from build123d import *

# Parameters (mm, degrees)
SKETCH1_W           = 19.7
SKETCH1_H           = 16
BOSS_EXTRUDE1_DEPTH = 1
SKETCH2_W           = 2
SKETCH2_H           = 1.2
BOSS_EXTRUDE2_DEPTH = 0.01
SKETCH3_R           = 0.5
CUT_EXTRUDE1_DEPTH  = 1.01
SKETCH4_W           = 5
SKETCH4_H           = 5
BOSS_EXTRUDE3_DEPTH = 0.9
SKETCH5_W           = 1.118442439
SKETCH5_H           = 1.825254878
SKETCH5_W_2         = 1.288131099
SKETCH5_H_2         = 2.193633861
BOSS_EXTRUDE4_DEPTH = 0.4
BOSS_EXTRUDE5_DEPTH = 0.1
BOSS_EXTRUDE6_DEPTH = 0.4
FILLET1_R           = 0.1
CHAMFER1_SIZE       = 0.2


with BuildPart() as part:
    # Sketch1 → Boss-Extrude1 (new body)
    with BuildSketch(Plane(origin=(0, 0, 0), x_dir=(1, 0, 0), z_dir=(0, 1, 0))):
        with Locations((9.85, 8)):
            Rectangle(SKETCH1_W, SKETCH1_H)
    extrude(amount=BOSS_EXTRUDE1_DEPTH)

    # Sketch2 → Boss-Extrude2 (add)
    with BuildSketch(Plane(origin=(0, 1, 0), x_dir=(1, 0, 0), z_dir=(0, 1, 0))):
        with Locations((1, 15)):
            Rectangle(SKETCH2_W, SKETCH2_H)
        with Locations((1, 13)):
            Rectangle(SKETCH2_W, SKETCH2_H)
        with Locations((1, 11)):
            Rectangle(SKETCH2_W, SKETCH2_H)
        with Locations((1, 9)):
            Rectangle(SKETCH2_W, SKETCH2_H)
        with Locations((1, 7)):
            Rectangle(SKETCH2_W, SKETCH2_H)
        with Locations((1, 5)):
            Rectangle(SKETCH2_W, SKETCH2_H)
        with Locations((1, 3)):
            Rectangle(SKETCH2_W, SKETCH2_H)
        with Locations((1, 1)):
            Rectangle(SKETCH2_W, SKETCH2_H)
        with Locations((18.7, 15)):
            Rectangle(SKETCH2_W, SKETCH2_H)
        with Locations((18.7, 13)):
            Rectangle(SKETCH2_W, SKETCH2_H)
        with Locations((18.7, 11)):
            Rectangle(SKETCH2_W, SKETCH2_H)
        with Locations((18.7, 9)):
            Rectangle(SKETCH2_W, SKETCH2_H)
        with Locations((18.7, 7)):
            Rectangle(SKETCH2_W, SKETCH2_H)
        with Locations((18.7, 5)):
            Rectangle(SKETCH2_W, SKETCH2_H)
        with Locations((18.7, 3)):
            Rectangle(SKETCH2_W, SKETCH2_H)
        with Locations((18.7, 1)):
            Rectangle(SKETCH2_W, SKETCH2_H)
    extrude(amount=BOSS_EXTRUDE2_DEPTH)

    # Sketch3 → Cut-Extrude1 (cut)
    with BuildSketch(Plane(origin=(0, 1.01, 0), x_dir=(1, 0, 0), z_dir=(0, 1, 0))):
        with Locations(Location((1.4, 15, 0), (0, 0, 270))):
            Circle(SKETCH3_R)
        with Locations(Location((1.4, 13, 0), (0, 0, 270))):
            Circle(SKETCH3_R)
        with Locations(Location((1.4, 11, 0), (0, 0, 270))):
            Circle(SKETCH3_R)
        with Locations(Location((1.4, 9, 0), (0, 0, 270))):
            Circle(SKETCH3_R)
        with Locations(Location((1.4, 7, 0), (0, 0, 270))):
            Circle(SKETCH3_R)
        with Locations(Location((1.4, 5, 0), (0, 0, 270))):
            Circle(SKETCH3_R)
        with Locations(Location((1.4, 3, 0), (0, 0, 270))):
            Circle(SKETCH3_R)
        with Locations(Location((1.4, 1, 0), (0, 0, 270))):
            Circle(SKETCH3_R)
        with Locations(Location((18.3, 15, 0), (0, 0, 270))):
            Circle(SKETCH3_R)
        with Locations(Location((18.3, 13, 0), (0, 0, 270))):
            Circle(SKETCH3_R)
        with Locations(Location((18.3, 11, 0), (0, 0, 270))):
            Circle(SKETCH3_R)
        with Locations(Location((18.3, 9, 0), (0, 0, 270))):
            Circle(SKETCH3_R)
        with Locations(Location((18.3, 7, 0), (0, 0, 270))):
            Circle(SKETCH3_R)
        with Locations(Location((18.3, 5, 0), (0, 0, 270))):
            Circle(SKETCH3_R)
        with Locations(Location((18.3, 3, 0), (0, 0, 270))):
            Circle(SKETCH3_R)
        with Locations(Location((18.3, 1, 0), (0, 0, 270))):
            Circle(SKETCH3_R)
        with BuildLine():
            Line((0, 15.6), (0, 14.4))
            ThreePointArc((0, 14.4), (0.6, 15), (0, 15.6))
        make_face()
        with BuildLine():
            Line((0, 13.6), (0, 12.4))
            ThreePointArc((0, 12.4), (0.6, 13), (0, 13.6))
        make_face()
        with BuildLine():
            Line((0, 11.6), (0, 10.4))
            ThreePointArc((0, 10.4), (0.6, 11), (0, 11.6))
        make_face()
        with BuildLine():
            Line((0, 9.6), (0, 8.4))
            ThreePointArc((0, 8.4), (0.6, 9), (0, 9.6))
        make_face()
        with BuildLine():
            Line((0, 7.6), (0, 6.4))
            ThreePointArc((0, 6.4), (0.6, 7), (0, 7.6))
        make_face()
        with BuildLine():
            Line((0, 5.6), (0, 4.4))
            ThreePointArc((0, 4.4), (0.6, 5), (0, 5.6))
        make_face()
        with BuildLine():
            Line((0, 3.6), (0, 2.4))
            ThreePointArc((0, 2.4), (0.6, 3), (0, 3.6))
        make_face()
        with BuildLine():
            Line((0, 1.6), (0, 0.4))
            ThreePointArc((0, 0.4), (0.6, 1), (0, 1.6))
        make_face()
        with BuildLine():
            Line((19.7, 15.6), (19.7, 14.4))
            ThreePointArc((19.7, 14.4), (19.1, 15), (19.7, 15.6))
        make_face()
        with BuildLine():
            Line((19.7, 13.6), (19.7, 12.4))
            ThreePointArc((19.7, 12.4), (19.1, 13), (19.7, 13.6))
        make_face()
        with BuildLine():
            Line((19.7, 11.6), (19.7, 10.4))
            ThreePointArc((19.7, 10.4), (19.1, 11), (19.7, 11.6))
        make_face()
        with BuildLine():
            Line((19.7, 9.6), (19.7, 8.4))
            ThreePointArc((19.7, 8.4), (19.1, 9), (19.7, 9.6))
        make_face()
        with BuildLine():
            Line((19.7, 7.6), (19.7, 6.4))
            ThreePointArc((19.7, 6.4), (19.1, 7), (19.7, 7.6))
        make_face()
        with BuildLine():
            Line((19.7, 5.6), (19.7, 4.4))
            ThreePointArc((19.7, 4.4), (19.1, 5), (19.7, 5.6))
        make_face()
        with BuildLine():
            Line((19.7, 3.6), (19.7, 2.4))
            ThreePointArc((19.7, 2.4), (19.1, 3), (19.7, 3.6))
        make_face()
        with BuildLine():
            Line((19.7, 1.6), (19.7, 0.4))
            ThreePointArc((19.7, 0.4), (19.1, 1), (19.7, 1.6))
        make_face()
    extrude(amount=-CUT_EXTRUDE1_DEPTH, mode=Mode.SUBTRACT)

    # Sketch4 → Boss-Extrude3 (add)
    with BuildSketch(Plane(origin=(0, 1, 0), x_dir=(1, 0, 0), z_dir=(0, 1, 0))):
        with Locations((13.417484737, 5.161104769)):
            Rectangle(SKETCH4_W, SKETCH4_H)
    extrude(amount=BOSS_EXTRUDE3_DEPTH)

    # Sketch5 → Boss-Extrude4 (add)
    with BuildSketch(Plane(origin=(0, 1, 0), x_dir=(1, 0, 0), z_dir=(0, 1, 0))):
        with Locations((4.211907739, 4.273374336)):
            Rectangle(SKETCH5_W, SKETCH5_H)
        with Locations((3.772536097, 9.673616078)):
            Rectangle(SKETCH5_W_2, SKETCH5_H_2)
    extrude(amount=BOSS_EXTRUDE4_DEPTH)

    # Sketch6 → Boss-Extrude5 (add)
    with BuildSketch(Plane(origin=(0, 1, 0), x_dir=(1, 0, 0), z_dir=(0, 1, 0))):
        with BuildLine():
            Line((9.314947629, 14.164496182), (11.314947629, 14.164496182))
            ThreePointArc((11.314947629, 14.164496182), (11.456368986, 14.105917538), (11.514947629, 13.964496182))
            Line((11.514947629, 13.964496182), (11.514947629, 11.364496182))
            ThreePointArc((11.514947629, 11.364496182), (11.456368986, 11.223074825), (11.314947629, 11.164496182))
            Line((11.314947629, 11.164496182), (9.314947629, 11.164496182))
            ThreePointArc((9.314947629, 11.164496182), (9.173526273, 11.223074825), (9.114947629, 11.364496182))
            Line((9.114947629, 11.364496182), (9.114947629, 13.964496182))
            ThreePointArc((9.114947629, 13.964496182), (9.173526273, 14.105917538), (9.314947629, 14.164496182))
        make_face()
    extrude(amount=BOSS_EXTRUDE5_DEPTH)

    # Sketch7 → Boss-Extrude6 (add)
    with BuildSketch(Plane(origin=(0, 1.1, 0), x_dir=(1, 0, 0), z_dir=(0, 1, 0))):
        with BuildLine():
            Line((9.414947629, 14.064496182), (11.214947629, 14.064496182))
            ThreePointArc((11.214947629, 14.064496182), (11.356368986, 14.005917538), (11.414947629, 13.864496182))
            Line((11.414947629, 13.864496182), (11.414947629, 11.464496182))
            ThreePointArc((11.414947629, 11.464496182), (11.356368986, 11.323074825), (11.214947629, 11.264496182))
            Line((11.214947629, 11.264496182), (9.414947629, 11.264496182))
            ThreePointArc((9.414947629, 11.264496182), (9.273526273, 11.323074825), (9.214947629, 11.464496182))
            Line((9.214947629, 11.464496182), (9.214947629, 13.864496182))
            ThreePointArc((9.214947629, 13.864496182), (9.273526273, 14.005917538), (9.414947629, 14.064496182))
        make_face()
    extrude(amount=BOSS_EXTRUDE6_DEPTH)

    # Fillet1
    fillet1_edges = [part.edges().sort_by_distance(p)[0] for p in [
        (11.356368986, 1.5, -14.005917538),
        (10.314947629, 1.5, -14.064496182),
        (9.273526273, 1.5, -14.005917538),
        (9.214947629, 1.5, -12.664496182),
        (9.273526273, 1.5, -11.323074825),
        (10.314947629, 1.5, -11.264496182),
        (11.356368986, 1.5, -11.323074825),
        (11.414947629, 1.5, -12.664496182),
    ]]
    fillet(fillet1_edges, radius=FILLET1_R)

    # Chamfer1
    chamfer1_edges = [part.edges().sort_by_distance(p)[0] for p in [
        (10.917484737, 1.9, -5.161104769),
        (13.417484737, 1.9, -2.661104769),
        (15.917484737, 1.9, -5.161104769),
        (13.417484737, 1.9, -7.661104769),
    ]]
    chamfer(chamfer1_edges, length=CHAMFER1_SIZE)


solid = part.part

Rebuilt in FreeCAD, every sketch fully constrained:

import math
import FreeCAD as App
import Part
import Sketcher

V = App.Vector
Q = App.Units.Quantity


def edges_at(feature, points):
    """Names of the edges that pass closest to the given points."""
    edges = feature.Shape.Edges
    near = lambda p: min(range(len(edges)), key=lambda i: edges[i].distToShape(Part.Vertex(*p))[0])
    return sorted({f"Edge{near(p) + 1}" for p in points})


def add_polygon(sketch, points):
    """Adds a closed chain of lines whose ends are joined by coincident constraints."""
    first, n = sketch.GeometryCount, len(points)
    for a, b in zip(points, points[1:] + points[:1]):
        sketch.addGeometry(Part.LineSegment(App.Vector(*a, 0), App.Vector(*b, 0)), False)
    for i in range(n):
        sketch.addConstraint(Sketcher.Constraint("Coincident", first + i, 2, first + (i + 1) % n, 1))

doc = App.newDocument("Part")
params = doc.addObject("Spreadsheet::Sheet", "Params")
for row, (alias, value) in enumerate([
    ("sketch1_height", "16 mm"),
    ("sketch1_width", "19.7 mm"),
    ("pad1_length", "1 mm"),
    ("sketch2_width", "2 mm"),
    ("sketch2_height", "1.2 mm"),
    ("pad2_length", "0.01 mm"),
    ("sketch3_diameter", "1 mm"),
    ("sketch3_radius", "0.6 mm"),
    ("pocket1_length", "1.01 mm"),
    ("sketch4_width", "5 mm"),
    ("pad3_length", "0.9 mm"),
    ("pad4_length", "0.4 mm"),
    ("sketch6_radius", "0.2 mm"),
    ("sketch6_width", "2 mm"),
    ("sketch6_height", "2.6 mm"),
    ("pad5_length", "0.1 mm"),
    ("sketch7_radius", "0.2 mm"),
    ("sketch7_width", "1.8 mm"),
    ("sketch7_height", "2.4 mm"),
    ("pad6_length", "0.4 mm"),
    ("fillet_radius", "0.1 mm"),
    ("chamfer_size", "0.2 mm"),
], start=1):
    params.set(f"A{row}", alias)
    params.set(f"B{row}", "=" + value)
    params.setAlias(f"B{row}", alias)

body = doc.addObject("PartDesign::Body", "Body")

# Sketch on XZ plane
sketch1 = body.newObject("Sketcher::SketchObject", "Sketch")
sketch1.AttachmentSupport = (doc.getObject("XZ_Plane"), [""])
sketch1.MapMode = "FlatFace"
add_polygon(sketch1, [(0, -16), (0, 0), (20, 0), (20, -16)])  # lines 0-3
sketch1.addConstraint([
    Sketcher.Constraint("Vertical", 0),
    Sketcher.Constraint("Horizontal", 1),
    Sketcher.Constraint("Vertical", 2),
    Sketcher.Constraint("Horizontal", 3),
    Sketcher.Constraint("Coincident", 0, 2, -1, 1),
    Sketcher.Constraint("DistanceY", 0, 1, 0, 2, Q("16 mm")),
    Sketcher.Constraint("DistanceX", 1, 1, 1, 2, Q("19.7 mm")),
])
sketch1.setExpression("Constraints[9]", "Params.sketch1_height")
sketch1.setExpression("Constraints[10]", "Params.sketch1_width")
pad1 = body.newObject("PartDesign::Pad", "Pad")
pad1.Profile = sketch1
pad1.setExpression("Length", "Params.pad1_length")
pad1.Reversed = True

# Sketch on XZ plane
sketch2 = body.newObject("Sketcher::SketchObject", "Sketch001")
sketch2.AttachmentSupport = (doc.getObject("XZ_Plane"), [""])
sketch2.MapMode = "FlatFace"
sketch2.AttachmentOffset = App.Placement(V(0, 0, -1), App.Rotation())
add_polygon(sketch2, [(0, -15.6), (0, -14.4), (2, -14.4), (2, -15.6)])  # lines 0-3
add_polygon(sketch2, [(0, -13.6), (0, -12.4), (2, -12.4), (2, -13.6)])  # lines 4-7
add_polygon(sketch2, [(0, -11.6), (0, -10.4), (2, -10.4), (2, -11.6)])  # lines 8-11
add_polygon(sketch2, [(0, -9.6), (0, -8.4), (2, -8.4), (2, -9.6)])  # lines 12-15
add_polygon(sketch2, [(0, -7.6), (0, -6.4), (2, -6.4), (2, -7.6)])  # lines 16-19
add_polygon(sketch2, [(0, -5.6), (0, -4.4), (2, -4.4), (2, -5.6)])  # lines 20-23
add_polygon(sketch2, [(0, -3.6), (0, -2.4), (2, -2.4), (2, -3.6)])  # lines 24-27
add_polygon(sketch2, [(0, -1.6), (0, -0.4), (2, -0.4), (2, -1.6)])  # lines 28-31
add_polygon(sketch2, [(17.7, -15.6), (17.7, -14.4), (19.7, -14.4), (19.7, -15.6)])  # lines 32-35
add_polygon(sketch2, [(17.7, -13.6), (17.7, -12.4), (19.7, -12.4), (19.7, -13.6)])  # lines 36-39
add_polygon(sketch2, [(17.7, -11.6), (17.7, -10.4), (19.7, -10.4), (19.7, -11.6)])  # lines 40-43
add_polygon(sketch2, [(17.7, -9.6), (17.7, -8.4), (19.7, -8.4), (19.7, -9.6)])  # lines 44-47
add_polygon(sketch2, [(17.7, -7.6), (17.7, -6.4), (19.7, -6.4), (19.7, -7.6)])  # lines 48-51
add_polygon(sketch2, [(17.7, -5.6), (17.7, -4.4), (19.7, -4.4), (19.7, -5.6)])  # lines 52-55
add_polygon(sketch2, [(17.7, -3.6), (17.7, -2.4), (19.7, -2.4), (19.7, -3.6)])  # lines 56-59
add_polygon(sketch2, [(17.7, -1.6), (17.7, -0.4), (19.7, -0.4), (19.7, -1.6)])  # lines 60-63
sketch2.addConstraint([
    Sketcher.Constraint("Vertical", 0),
    Sketcher.Constraint("Horizontal", 1),
    Sketcher.Constraint("Vertical", 2),
    Sketcher.Constraint("Horizontal", 3),
    Sketcher.Constraint("Vertical", 4),
    Sketcher.Constraint("Horizontal", 5),
    Sketcher.Constraint("Vertical", 6),
    Sketcher.Constraint("Horizontal", 7),
    Sketcher.Constraint("Vertical", 8),
    Sketcher.Constraint("Horizontal", 9),
    Sketcher.Constraint("Vertical", 10),
    Sketcher.Constraint("Horizontal", 11),
    Sketcher.Constraint("Vertical", 12),
    Sketcher.Constraint("Horizontal", 13),
    Sketcher.Constraint("Vertical", 14),
    Sketcher.Constraint("Horizontal", 15),
    Sketcher.Constraint("Vertical", 16),
    Sketcher.Constraint("Horizontal", 17),
    Sketcher.Constraint("Vertical", 18),
    Sketcher.Constraint("Horizontal", 19),
    Sketcher.Constraint("Vertical", 20),
    Sketcher.Constraint("Horizontal", 21),
    Sketcher.Constraint("Vertical", 22),
    Sketcher.Constraint("Horizontal", 23),
    Sketcher.Constraint("Vertical", 24),
    Sketcher.Constraint("Horizontal", 25),
    Sketcher.Constraint("Vertical", 26),
    Sketcher.Constraint("Horizontal", 27),
    Sketcher.Constraint("Vertical", 28),
    Sketcher.Constraint("Horizontal", 29),
    Sketcher.Constraint("Vertical", 30),
    Sketcher.Constraint("Horizontal", 31),
    Sketcher.Constraint("Vertical", 32),
    Sketcher.Constraint("Horizontal", 33),
    Sketcher.Constraint("Vertical", 34),
    Sketcher.Constraint("Horizontal", 35),
    Sketcher.Constraint("Vertical", 36),
    Sketcher.Constraint("Horizontal", 37),
    Sketcher.Constraint("Vertical", 38),
    Sketcher.Constraint("Horizontal", 39),
    Sketcher.Constraint("Vertical", 40),
    Sketcher.Constraint("Horizontal", 41),
    Sketcher.Constraint("Vertical", 42),
    Sketcher.Constraint("Horizontal", 43),
    Sketcher.Constraint("Vertical", 44),
    Sketcher.Constraint("Horizontal", 45),
    Sketcher.Constraint("Vertical", 46),
    Sketcher.Constraint("Horizontal", 47),
    Sketcher.Constraint("Vertical", 48),
    Sketcher.Constraint("Horizontal", 49),
    Sketcher.Constraint("Vertical", 50),
    Sketcher.Constraint("Horizontal", 51),
    Sketcher.Constraint("Vertical", 52),
    Sketcher.Constraint("Horizontal", 53),
    Sketcher.Constraint("Vertical", 54),
    Sketcher.Constraint("Horizontal", 55),
    Sketcher.Constraint("Vertical", 56),
    Sketcher.Constraint("Horizontal", 57),
    Sketcher.Constraint("Vertical", 58),
    Sketcher.Constraint("Horizontal", 59),
    Sketcher.Constraint("Vertical", 60),
    Sketcher.Constraint("Horizontal", 61),
    Sketcher.Constraint("Vertical", 62),
    Sketcher.Constraint("Horizontal", 63),
    Sketcher.Constraint("PointOnObject", 0, 2, -2),
    Sketcher.Constraint("PointOnObject", 4, 2, -2),
    Sketcher.Constraint("PointOnObject", 8, 2, -2),
    Sketcher.Constraint("PointOnObject", 12, 2, -2),
    Sketcher.Constraint("PointOnObject", 16, 2, -2),
    Sketcher.Constraint("PointOnObject", 20, 2, -2),
    Sketcher.Constraint("PointOnObject", 24, 2, -2),
    Sketcher.Constraint("PointOnObject", 28, 2, -2),
    Sketcher.Constraint("Horizontal", 1, 2, 32, 2),
    Sketcher.Constraint("Horizontal", 3, 2, 34, 2),
    Sketcher.Constraint("Horizontal", 5, 2, 36, 2),
    Sketcher.Constraint("Horizontal", 7, 2, 38, 2),
    Sketcher.Constraint("Horizontal", 9, 2, 40, 2),
    Sketcher.Constraint("Horizontal", 11, 2, 42, 2),
    Sketcher.Constraint("Horizontal", 13, 2, 44, 2),
    Sketcher.Constraint("Horizontal", 15, 2, 46, 2),
    Sketcher.Constraint("Horizontal", 17, 2, 48, 2),
    Sketcher.Constraint("Horizontal", 19, 2, 50, 2),
    Sketcher.Constraint("Horizontal", 21, 2, 52, 2),
    Sketcher.Constraint("Horizontal", 23, 2, 54, 2),
    Sketcher.Constraint("Horizontal", 25, 2, 56, 2),
    Sketcher.Constraint("Horizontal", 27, 2, 58, 2),
    Sketcher.Constraint("Horizontal", 29, 2, 60, 2),
    Sketcher.Constraint("Horizontal", 31, 2, 62, 2),
    Sketcher.Constraint("Vertical", 2, 2, 5, 2),
    Sketcher.Constraint("Vertical", 6, 2, 9, 2),
    Sketcher.Constraint("Vertical", 10, 2, 13, 2),
    Sketcher.Constraint("Vertical", 14, 2, 17, 2),
    Sketcher.Constraint("Vertical", 18, 2, 21, 2),
    Sketcher.Constraint("Vertical", 22, 2, 25, 2),
    Sketcher.Constraint("Vertical", 26, 2, 29, 2),
    Sketcher.Constraint("Vertical", 35, 2, 36, 2),
    Sketcher.Constraint("Vertical", 34, 2, 37, 2),
    Sketcher.Constraint("Vertical", 39, 2, 40, 2),
    Sketcher.Constraint("Vertical", 38, 2, 41, 2),
    Sketcher.Constraint("Vertical", 43, 2, 44, 2),
    Sketcher.Constraint("Vertical", 42, 2, 45, 2),
    Sketcher.Constraint("Vertical", 47, 2, 48, 2),
    Sketcher.Constraint("Vertical", 46, 2, 49, 2),
    Sketcher.Constraint("Vertical", 51, 2, 52, 2),
    Sketcher.Constraint("Vertical", 50, 2, 53, 2),
    Sketcher.Constraint("Vertical", 55, 2, 56, 2),
    Sketcher.Constraint("Vertical", 54, 2, 57, 2),
    Sketcher.Constraint("Vertical", 59, 2, 60, 2),
    Sketcher.Constraint("Vertical", 58, 2, 61, 2),
    Sketcher.Constraint("Equal", 31, 33),
    Sketcher.Constraint("Equal", 2, 4),
    Sketcher.Constraint("Equal", 6, 8),
    Sketcher.Constraint("Equal", 10, 12),
    Sketcher.Constraint("Equal", 14, 16),
    Sketcher.Constraint("Equal", 18, 20),
    Sketcher.Constraint("Equal", 22, 24),
    Sketcher.Constraint("Equal", 26, 28),
    Sketcher.Constraint("DistanceX", 1, 1, 1, 2, Q("2 mm")),
    Sketcher.Constraint("DistanceY", 0, 1, 0, 2, Q("1.2 mm")),
    Sketcher.Constraint("DistanceY", 0, 2, -1, 1, Q("14.4 mm")),
    Sketcher.Constraint("DistanceY", 4, 2, -1, 1, Q("12.4 mm")),
    Sketcher.Constraint("DistanceY", 8, 2, -1, 1, Q("10.4 mm")),
    Sketcher.Constraint("DistanceY", 12, 2, -1, 1, Q("8.4 mm")),
    Sketcher.Constraint("DistanceY", 16, 2, -1, 1, Q("6.4 mm")),
    Sketcher.Constraint("DistanceY", 20, 2, -1, 1, Q("4.4 mm")),
    Sketcher.Constraint("DistanceY", 24, 2, -1, 1, Q("2.4 mm")),
    Sketcher.Constraint("DistanceY", 28, 2, -1, 1, Q("0.4 mm")),
    Sketcher.Constraint("DistanceX", -1, 1, 32, 2, Q("17.7 mm")),
])
sketch2.setExpression("Constraints[181]", "Params.sketch2_width")
sketch2.setExpression("Constraints[182]", "Params.sketch2_height")
pad2 = body.newObject("PartDesign::Pad", "Pad001")
pad2.Profile = sketch2
pad2.setExpression("Length", "Params.pad2_length")
pad2.Reversed = True

# Sketch on XZ plane
sketch3 = body.newObject("Sketcher::SketchObject", "Sketch002")
sketch3.AttachmentSupport = (doc.getObject("XZ_Plane"), [""])
sketch3.MapMode = "FlatFace"
sketch3.AttachmentOffset = App.Placement(V(0, 0, -1.01), App.Rotation())
sketch3.addGeometry([
    Part.Circle(V(1.4, -15, 0), V(0, 0, 1), 0.5),  # 0
    Part.Circle(V(1.4, -13, 0), V(0, 0, 1), 0.5),  # 1
    Part.Circle(V(1.4, -11, 0), V(0, 0, 1), 0.5),  # 2
    Part.Circle(V(1.4, -9, 0), V(0, 0, 1), 0.5),  # 3
    Part.Circle(V(1.4, -7, 0), V(0, 0, 1), 0.5),  # 4
    Part.Circle(V(1.4, -5, 0), V(0, 0, 1), 0.5),  # 5
    Part.Circle(V(1.4, -3, 0), V(0, 0, 1), 0.5),  # 6
    Part.Circle(V(1.4, -1, 0), V(0, 0, 1), 0.5),  # 7
    Part.Circle(V(18.3, -15, 0), V(0, 0, 1), 0.5),  # 8
    Part.Circle(V(18.3, -13, 0), V(0, 0, 1), 0.5),  # 9
    Part.Circle(V(18.3, -11, 0), V(0, 0, 1), 0.5),  # 10
    Part.Circle(V(18.3, -9, 0), V(0, 0, 1), 0.5),  # 11
    Part.Circle(V(18.3, -7, 0), V(0, 0, 1), 0.5),  # 12
    Part.Circle(V(18.3, -5, 0), V(0, 0, 1), 0.5),  # 13
    Part.Circle(V(18.3, -3, 0), V(0, 0, 1), 0.5),  # 14
    Part.Circle(V(18.3, -1, 0), V(0, 0, 1), 0.5),  # 15
    Part.LineSegment(V(0, -15.6, 0), V(0, -14.4, 0)),  # 16
    Part.ArcOfCircle(Part.Circle(V(0, -15, 0), V(0, 0, 1), 0.6), math.radians(-90), math.radians(90)),  # 17
    Part.LineSegment(V(0, -13.6, 0), V(0, -12.4, 0)),  # 18
    Part.ArcOfCircle(Part.Circle(V(0, -13, 0), V(0, 0, 1), 0.6), math.radians(-90), math.radians(90)),  # 19
    Part.LineSegment(V(0, -11.6, 0), V(0, -10.4, 0)),  # 20
    Part.ArcOfCircle(Part.Circle(V(0, -11, 0), V(0, 0, 1), 0.6), math.radians(-90), math.radians(90)),  # 21
    Part.LineSegment(V(0, -9.6, 0), V(0, -8.4, 0)),  # 22
    Part.ArcOfCircle(Part.Circle(V(0, -9, 0), V(0, 0, 1), 0.6), math.radians(-90), math.radians(90)),  # 23
    Part.LineSegment(V(0, -7.6, 0), V(0, -6.4, 0)),  # 24
    Part.ArcOfCircle(Part.Circle(V(0, -7, 0), V(0, 0, 1), 0.6), math.radians(-90), math.radians(90)),  # 25
    Part.LineSegment(V(0, -5.6, 0), V(0, -4.4, 0)),  # 26
    Part.ArcOfCircle(Part.Circle(V(0, -5, 0), V(0, 0, 1), 0.6), math.radians(-90), math.radians(90)),  # 27
    Part.LineSegment(V(0, -3.6, 0), V(0, -2.4, 0)),  # 28
    Part.ArcOfCircle(Part.Circle(V(0, -3, 0), V(0, 0, 1), 0.6), math.radians(-90), math.radians(90)),  # 29
    Part.LineSegment(V(0, -1.6, 0), V(0, -0.4, 0)),  # 30
    Part.ArcOfCircle(Part.Circle(V(0, -1, 0), V(0, 0, 1), 0.6), math.radians(-90), math.radians(90)),  # 31
    Part.LineSegment(V(19.7, -14.4, 0), V(19.7, -15.6, 0)),  # 32
    Part.ArcOfCircle(Part.Circle(V(19.7, -15, 0), V(0, 0, 1), 0.6), math.radians(90), math.radians(270)),  # 33
    Part.LineSegment(V(19.7, -12.4, 0), V(19.7, -13.6, 0)),  # 34
    Part.ArcOfCircle(Part.Circle(V(19.7, -13, 0), V(0, 0, 1), 0.6), math.radians(90), math.radians(270)),  # 35
    Part.LineSegment(V(19.7, -10.4, 0), V(19.7, -11.6, 0)),  # 36
    Part.ArcOfCircle(Part.Circle(V(19.7, -11, 0), V(0, 0, 1), 0.6), math.radians(90), math.radians(270)),  # 37
    Part.LineSegment(V(19.7, -8.4, 0), V(19.7, -9.6, 0)),  # 38
    Part.ArcOfCircle(Part.Circle(V(19.7, -9, 0), V(0, 0, 1), 0.6), math.radians(90), math.radians(270)),  # 39
    Part.LineSegment(V(19.7, -6.4, 0), V(19.7, -7.6, 0)),  # 40
    Part.ArcOfCircle(Part.Circle(V(19.7, -7, 0), V(0, 0, 1), 0.6), math.radians(90), math.radians(270)),  # 41
    Part.LineSegment(V(19.7, -4.4, 0), V(19.7, -5.6, 0)),  # 42
    Part.ArcOfCircle(Part.Circle(V(19.7, -5, 0), V(0, 0, 1), 0.6), math.radians(90), math.radians(270)),  # 43
    Part.LineSegment(V(19.7, -2.4, 0), V(19.7, -3.6, 0)),  # 44
    Part.ArcOfCircle(Part.Circle(V(19.7, -3, 0), V(0, 0, 1), 0.6), math.radians(90), math.radians(270)),  # 45
    Part.LineSegment(V(19.7, -0.4, 0), V(19.7, -1.6, 0)),  # 46
    Part.ArcOfCircle(Part.Circle(V(19.7, -1, 0), V(0, 0, 1), 0.6), math.radians(90), math.radians(270)),  # 47
], False)
sketch3.addConstraint([
    Sketcher.Constraint("Coincident", 16, 1, 17, 1),
    Sketcher.Constraint("Coincident", 17, 2, 16, 2),
    Sketcher.Constraint("Coincident", 18, 1, 19, 1),
    Sketcher.Constraint("Coincident", 19, 2, 18, 2),
    Sketcher.Constraint("Coincident", 20, 1, 21, 1),
    Sketcher.Constraint("Coincident", 21, 2, 20, 2),
    Sketcher.Constraint("Coincident", 22, 1, 23, 1),
    Sketcher.Constraint("Coincident", 23, 2, 22, 2),
    Sketcher.Constraint("Coincident", 24, 1, 25, 1),
    Sketcher.Constraint("Coincident", 25, 2, 24, 2),
    Sketcher.Constraint("Coincident", 26, 1, 27, 1),
    Sketcher.Constraint("Coincident", 27, 2, 26, 2),
    Sketcher.Constraint("Coincident", 28, 1, 29, 1),
    Sketcher.Constraint("Coincident", 29, 2, 28, 2),
    Sketcher.Constraint("Coincident", 30, 1, 31, 1),
    Sketcher.Constraint("Coincident", 31, 2, 30, 2),
    Sketcher.Constraint("Coincident", 32, 1, 33, 1),
    Sketcher.Constraint("Coincident", 33, 2, 32, 2),
    Sketcher.Constraint("Coincident", 34, 1, 35, 1),
    Sketcher.Constraint("Coincident", 35, 2, 34, 2),
    Sketcher.Constraint("Coincident", 36, 1, 37, 1),
    Sketcher.Constraint("Coincident", 37, 2, 36, 2),
    Sketcher.Constraint("Coincident", 38, 1, 39, 1),
    Sketcher.Constraint("Coincident", 39, 2, 38, 2),
    Sketcher.Constraint("Coincident", 40, 1, 41, 1),
    Sketcher.Constraint("Coincident", 41, 2, 40, 2),
    Sketcher.Constraint("Coincident", 42, 1, 43, 1),
    Sketcher.Constraint("Coincident", 43, 2, 42, 2),
    Sketcher.Constraint("Coincident", 44, 1, 45, 1),
    Sketcher.Constraint("Coincident", 45, 2, 44, 2),
    Sketcher.Constraint("Coincident", 46, 1, 47, 1),
    Sketcher.Constraint("Coincident", 47, 2, 46, 2),
    Sketcher.Constraint("Vertical", 16),
    Sketcher.Constraint("Vertical", 18),
    Sketcher.Constraint("Vertical", 20),
    Sketcher.Constraint("Vertical", 22),
    Sketcher.Constraint("Vertical", 24),
    Sketcher.Constraint("Vertical", 26),
    Sketcher.Constraint("Vertical", 28),
    Sketcher.Constraint("Vertical", 30),
    Sketcher.Constraint("Vertical", 32),
    Sketcher.Constraint("Vertical", 34),
    Sketcher.Constraint("Vertical", 36),
    Sketcher.Constraint("Vertical", 38),
    Sketcher.Constraint("Vertical", 40),
    Sketcher.Constraint("Vertical", 42),
    Sketcher.Constraint("Vertical", 44),
    Sketcher.Constraint("Vertical", 46),
    Sketcher.Constraint("Equal", 0, 1),
    Sketcher.Constraint("Equal", 1, 2),
    Sketcher.Constraint("Equal", 2, 3),
    Sketcher.Constraint("Equal", 3, 4),
    Sketcher.Constraint("Equal", 4, 5),
    Sketcher.Constraint("Equal", 5, 6),
    Sketcher.Constraint("Equal", 6, 7),
    Sketcher.Constraint("Equal", 7, 8),
    Sketcher.Constraint("Equal", 8, 9),
    Sketcher.Constraint("Equal", 9, 10),
    Sketcher.Constraint("Equal", 10, 11),
    Sketcher.Constraint("Equal", 11, 12),
    Sketcher.Constraint("Equal", 12, 13),
    Sketcher.Constraint("Equal", 13, 14),
    Sketcher.Constraint("Equal", 14, 15),
    Sketcher.Constraint("Equal", 17, 19),
    Sketcher.Constraint("Equal", 19, 21),
    Sketcher.Constraint("Equal", 21, 23),
    Sketcher.Constraint("Equal", 23, 25),
    Sketcher.Constraint("Equal", 25, 27),
    Sketcher.Constraint("Equal", 27, 29),
    Sketcher.Constraint("Equal", 29, 31),
    Sketcher.Constraint("Equal", 31, 33),
    Sketcher.Constraint("Equal", 33, 35),
    Sketcher.Constraint("Equal", 35, 37),
    Sketcher.Constraint("Equal", 37, 39),
    Sketcher.Constraint("Equal", 39, 41),
    Sketcher.Constraint("Equal", 41, 43),
    Sketcher.Constraint("Equal", 43, 45),
    Sketcher.Constraint("Equal", 45, 47),
    Sketcher.Constraint("PointOnObject", 17, 3, -2),
    Sketcher.Constraint("PointOnObject", 19, 3, -2),
    Sketcher.Constraint("PointOnObject", 21, 3, -2),
    Sketcher.Constraint("PointOnObject", 23, 3, -2),
    Sketcher.Constraint("PointOnObject", 25, 3, -2),
    Sketcher.Constraint("PointOnObject", 27, 3, -2),
    Sketcher.Constraint("PointOnObject", 29, 3, -2),
    Sketcher.Constraint("PointOnObject", 31, 3, -2),
    Sketcher.Constraint("PointOnObject", 16, 1, -2),
    Sketcher.Constraint("PointOnObject", 18, 1, -2),
    Sketcher.Constraint("PointOnObject", 20, 1, -2),
    Sketcher.Constraint("PointOnObject", 22, 1, -2),
    Sketcher.Constraint("PointOnObject", 24, 1, -2),
    Sketcher.Constraint("PointOnObject", 26, 1, -2),
    Sketcher.Constraint("PointOnObject", 28, 1, -2),
    Sketcher.Constraint("PointOnObject", 30, 1, -2),
    Sketcher.Constraint("Horizontal", 0, 3, 8, 3),
    Sketcher.Constraint("Horizontal", 1, 3, 9, 3),
    Sketcher.Constraint("Horizontal", 2, 3, 10, 3),
    Sketcher.Constraint("Horizontal", 3, 3, 11, 3),
    Sketcher.Constraint("Horizontal", 4, 3, 12, 3),
    Sketcher.Constraint("Horizontal", 5, 3, 13, 3),
    Sketcher.Constraint("Horizontal", 6, 3, 14, 3),
    Sketcher.Constraint("Horizontal", 7, 3, 15, 3),
    Sketcher.Constraint("Horizontal", 8, 3, 17, 3),
    Sketcher.Constraint("Horizontal", 9, 3, 19, 3),
    Sketcher.Constraint("Horizontal", 10, 3, 21, 3),
    Sketcher.Constraint("Horizontal", 11, 3, 23, 3),
    Sketcher.Constraint("Horizontal", 12, 3, 25, 3),
    Sketcher.Constraint("Horizontal", 13, 3, 27, 3),
    Sketcher.Constraint("Horizontal", 14, 3, 29, 3),
    Sketcher.Constraint("Horizontal", 15, 3, 31, 3),
    Sketcher.Constraint("Horizontal", 17, 3, 33, 3),
    Sketcher.Constraint("Horizontal", 19, 3, 35, 3),
    Sketcher.Constraint("Horizontal", 21, 3, 37, 3),
    Sketcher.Constraint("Horizontal", 23, 3, 39, 3),
    Sketcher.Constraint("Horizontal", 25, 3, 41, 3),
    Sketcher.Constraint("Horizontal", 27, 3, 43, 3),
    Sketcher.Constraint("Horizontal", 29, 3, 45, 3),
    Sketcher.Constraint("Horizontal", 31, 3, 47, 3),
    Sketcher.Constraint("Vertical", 0, 3, 1, 3),
    Sketcher.Constraint("Vertical", 1, 3, 2, 3),
    Sketcher.Constraint("Vertical", 2, 3, 3, 3),
    Sketcher.Constraint("Vertical", 3, 3, 4, 3),
    Sketcher.Constraint("Vertical", 4, 3, 5, 3),
    Sketcher.Constraint("Vertical", 5, 3, 6, 3),
    Sketcher.Constraint("Vertical", 6, 3, 7, 3),
    Sketcher.Constraint("Vertical", 8, 3, 9, 3),
    Sketcher.Constraint("Vertical", 9, 3, 10, 3),
    Sketcher.Constraint("Vertical", 10, 3, 11, 3),
    Sketcher.Constraint("Vertical", 11, 3, 12, 3),
    Sketcher.Constraint("Vertical", 12, 3, 13, 3),
    Sketcher.Constraint("Vertical", 13, 3, 14, 3),
    Sketcher.Constraint("Vertical", 14, 3, 15, 3),
    Sketcher.Constraint("Vertical", 33, 3, 35, 3),
    Sketcher.Constraint("Vertical", 35, 3, 37, 3),
    Sketcher.Constraint("Vertical", 37, 3, 39, 3),
    Sketcher.Constraint("Vertical", 39, 3, 41, 3),
    Sketcher.Constraint("Vertical", 41, 3, 43, 3),
    Sketcher.Constraint("Vertical", 43, 3, 45, 3),
    Sketcher.Constraint("Vertical", 45, 3, 47, 3),
    Sketcher.Constraint("Vertical", 47, 3, 32, 1),
    Sketcher.Constraint("Vertical", 33, 2, 34, 1),
    Sketcher.Constraint("Vertical", 35, 2, 36, 1),
    Sketcher.Constraint("Vertical", 37, 2, 38, 1),
    Sketcher.Constraint("Vertical", 39, 2, 40, 1),
    Sketcher.Constraint("Vertical", 41, 2, 42, 1),
    Sketcher.Constraint("Vertical", 43, 2, 44, 1),
    Sketcher.Constraint("Vertical", 45, 2, 46, 1),
    Sketcher.Constraint("Diameter", 0, Q("1 mm")),
    Sketcher.Constraint("Radius", 17, Q("0.6 mm")),
    Sketcher.Constraint("DistanceY", 0, 3, -1, 1, Q("15 mm")),
    Sketcher.Constraint("DistanceY", 1, 3, -1, 1, Q("13 mm")),
    Sketcher.Constraint("DistanceY", 2, 3, -1, 1, Q("11 mm")),
    Sketcher.Constraint("DistanceY", 3, 3, -1, 1, Q("9 mm")),
    Sketcher.Constraint("DistanceY", 4, 3, -1, 1, Q("7 mm")),
    Sketcher.Constraint("DistanceY", 5, 3, -1, 1, Q("5 mm")),
    Sketcher.Constraint("DistanceY", 6, 3, -1, 1, Q("3 mm")),
    Sketcher.Constraint("DistanceY", 7, 3, -1, 1, Q("1 mm")),
    Sketcher.Constraint("DistanceX", -1, 1, 0, 3, Q("1.4 mm")),
    Sketcher.Constraint("DistanceX", -1, 1, 8, 3, Q("18.3 mm")),
    Sketcher.Constraint("DistanceX", -1, 1, 33, 3, Q("19.7 mm")),
])
sketch3.setExpression("Constraints[147]", "Params.sketch3_diameter")
sketch3.setExpression("Constraints[148]", "Params.sketch3_radius")
pocket1 = body.newObject("PartDesign::Pocket", "Pocket")
pocket1.Profile = sketch3
pocket1.setExpression("Length", "Params.pocket1_length")
pocket1.Reversed = True

# Sketch on XZ plane
sketch4 = body.newObject("Sketcher::SketchObject", "Sketch003")
sketch4.AttachmentSupport = (doc.getObject("XZ_Plane"), [""])
sketch4.MapMode = "FlatFace"
sketch4.AttachmentOffset = App.Placement(V(0, 0, -1), App.Rotation())
add_polygon(sketch4, [(11, -8), (11, -3), (16, -3), (16, -8)])  # lines 0-3
sketch4.addConstraint([
    Sketcher.Constraint("Vertical", 0),
    Sketcher.Constraint("Horizontal", 1),
    Sketcher.Constraint("Vertical", 2),
    Sketcher.Constraint("Horizontal", 3),
    Sketcher.Constraint("Equal", 3, 0),
    Sketcher.Constraint("DistanceX", 1, 1, 1, 2, Q("5 mm")),
    Sketcher.Constraint("DistanceX", -1, 1, 0, 2, Q("10.917485 mm")),
    Sketcher.Constraint("DistanceY", 0, 2, -1, 1, Q("2.661105 mm")),
])
sketch4.setExpression("Constraints[9]", "Params.sketch4_width")
pad3 = body.newObject("PartDesign::Pad", "Pad002")
pad3.Profile = sketch4
pad3.setExpression("Length", "Params.pad3_length")
pad3.Reversed = True

# Sketch on XZ plane
sketch5 = body.newObject("Sketcher::SketchObject", "Sketch004")
sketch5.AttachmentSupport = (doc.getObject("XZ_Plane"), [""])
sketch5.MapMode = "FlatFace"
sketch5.AttachmentOffset = App.Placement(V(0, 0, -1), App.Rotation())
add_polygon(sketch5, [(3.7, -5.2), (3.7, -3.4), (4.8, -3.4), (4.8, -5.2)])  # lines 0-3
add_polygon(sketch5, [(3.1, -10.8), (3.1, -8.6), (4.4, -8.6), (4.4, -10.8)])  # lines 4-7
sketch5.addConstraint([
    Sketcher.Constraint("Vertical", 0),
    Sketcher.Constraint("Horizontal", 1),
    Sketcher.Constraint("Vertical", 2),
    Sketcher.Constraint("Horizontal", 3),
    Sketcher.Constraint("Vertical", 4),
    Sketcher.Constraint("Horizontal", 5),
    Sketcher.Constraint("Vertical", 6),
    Sketcher.Constraint("Horizontal", 7),
    Sketcher.Constraint("DistanceY", 2, 2, -1, 1, Q("5.186002 mm")),
    Sketcher.Constraint("DistanceX", 5, 1, 5, 2, Q("1.288131 mm")),
    Sketcher.Constraint("DistanceY", 4, 2, -1, 1, Q("8.576799 mm")),
    Sketcher.Constraint("DistanceX", -1, 1, 5, 2, Q("4.416602 mm")),
    Sketcher.Constraint("DistanceX", 1, 1, 1, 2, Q("1.118442 mm")),
    Sketcher.Constraint("DistanceY", 0, 1, 0, 2, Q("1.825255 mm")),
    Sketcher.Constraint("DistanceY", 4, 1, 4, 2, Q("2.193634 mm")),
    Sketcher.Constraint("DistanceX", -1, 1, 1, 2, Q("4.771129 mm")),
])
pad4 = body.newObject("PartDesign::Pad", "Pad003")
pad4.Profile = sketch5
pad4.setExpression("Length", "Params.pad4_length")
pad4.Reversed = True

# Sketch on XZ plane
sketch6 = body.newObject("Sketcher::SketchObject", "Sketch005")
sketch6.AttachmentSupport = (doc.getObject("XZ_Plane"), [""])
sketch6.MapMode = "FlatFace"
sketch6.AttachmentOffset = App.Placement(V(0, 0, -1), App.Rotation())
sketch6.addGeometry([
    Part.LineSegment(V(11.31, -14.16, 0), V(9.31, -14.16, 0)),  # 0
    Part.ArcOfCircle(Part.Circle(V(9.31, -13.96, 0), V(0, 0, 1), 0.2), math.radians(-180), math.radians(-90)),  # 1
    Part.LineSegment(V(9.11, -13.96, 0), V(9.11, -11.36, 0)),  # 2
    Part.ArcOfCircle(Part.Circle(V(9.31, -11.36, 0), V(0, 0, 1), 0.2), math.radians(90), math.radians(180)),  # 3
    Part.LineSegment(V(9.31, -11.16, 0), V(11.31, -11.16, 0)),  # 4
    Part.ArcOfCircle(Part.Circle(V(11.31, -11.36, 0), V(0, 0, 1), 0.2), math.radians(0), math.radians(90)),  # 5
    Part.LineSegment(V(11.51, -11.36, 0), V(11.51, -13.96, 0)),  # 6
    Part.ArcOfCircle(Part.Circle(V(11.31, -13.96, 0), V(0, 0, 1), 0.2), math.radians(-90), math.radians(0)),  # 7
], False)
sketch6.addConstraint([
    Sketcher.Constraint("Tangent", 0, 2, 1, 2),
    Sketcher.Constraint("Tangent", 1, 1, 2, 1),
    Sketcher.Constraint("Tangent", 2, 2, 3, 2),
    Sketcher.Constraint("Tangent", 3, 1, 4, 1),
    Sketcher.Constraint("Tangent", 4, 2, 5, 2),
    Sketcher.Constraint("Tangent", 5, 1, 6, 1),
    Sketcher.Constraint("Tangent", 6, 2, 7, 2),
    Sketcher.Constraint("Tangent", 7, 1, 0, 1),
    Sketcher.Constraint("Horizontal", 0),
    Sketcher.Constraint("Vertical", 2),
    Sketcher.Constraint("Horizontal", 4),
    Sketcher.Constraint("Vertical", 6),
    Sketcher.Constraint("Equal", 1, 3),
    Sketcher.Constraint("Equal", 3, 5),
    Sketcher.Constraint("Equal", 5, 7),
    Sketcher.Constraint("Radius", 1, Q("0.2 mm")),
    Sketcher.Constraint("DistanceX", 0, 2, 0, 1, Q("2 mm")),
    Sketcher.Constraint("DistanceY", 2, 1, 2, 2, Q("2.6 mm")),
    Sketcher.Constraint("DistanceX", -1, 1, 1, 3, Q("9.314948 mm")),
    Sketcher.Constraint("DistanceY", 1, 3, -1, 1, Q("13.964496 mm")),
])
sketch6.setExpression("Constraints[15]", "Params.sketch6_radius")
sketch6.setExpression("Constraints[16]", "Params.sketch6_width")
sketch6.setExpression("Constraints[17]", "Params.sketch6_height")
pad5 = body.newObject("PartDesign::Pad", "Pad004")
pad5.Profile = sketch6
pad5.setExpression("Length", "Params.pad5_length")
pad5.Reversed = True

# Sketch on XZ plane
sketch7 = body.newObject("Sketcher::SketchObject", "Sketch006")
sketch7.AttachmentSupport = (doc.getObject("XZ_Plane"), [""])
sketch7.MapMode = "FlatFace"
sketch7.AttachmentOffset = App.Placement(V(0, 0, -1.1), App.Rotation())
sketch7.addGeometry([
    Part.LineSegment(V(11.21, -14.06, 0), V(9.41, -14.06, 0)),  # 0
    Part.ArcOfCircle(Part.Circle(V(9.41, -13.86, 0), V(0, 0, 1), 0.2), math.radians(-180), math.radians(-90)),  # 1
    Part.LineSegment(V(9.21, -13.86, 0), V(9.21, -11.46, 0)),  # 2
    Part.ArcOfCircle(Part.Circle(V(9.41, -11.46, 0), V(0, 0, 1), 0.2), math.radians(90), math.radians(180)),  # 3
    Part.LineSegment(V(9.41, -11.26, 0), V(11.21, -11.26, 0)),  # 4
    Part.ArcOfCircle(Part.Circle(V(11.21, -11.46, 0), V(0, 0, 1), 0.2), math.radians(0), math.radians(90)),  # 5
    Part.LineSegment(V(11.41, -11.46, 0), V(11.41, -13.86, 0)),  # 6
    Part.ArcOfCircle(Part.Circle(V(11.21, -13.86, 0), V(0, 0, 1), 0.2), math.radians(-90), math.radians(0)),  # 7
], False)
sketch7.addConstraint([
    Sketcher.Constraint("Tangent", 0, 2, 1, 2),
    Sketcher.Constraint("Tangent", 1, 1, 2, 1),
    Sketcher.Constraint("Tangent", 2, 2, 3, 2),
    Sketcher.Constraint("Tangent", 3, 1, 4, 1),
    Sketcher.Constraint("Tangent", 4, 2, 5, 2),
    Sketcher.Constraint("Tangent", 5, 1, 6, 1),
    Sketcher.Constraint("Tangent", 6, 2, 7, 2),
    Sketcher.Constraint("Tangent", 7, 1, 0, 1),
    Sketcher.Constraint("Horizontal", 0),
    Sketcher.Constraint("Vertical", 2),
    Sketcher.Constraint("Horizontal", 4),
    Sketcher.Constraint("Vertical", 6),
    Sketcher.Constraint("Equal", 1, 3),
    Sketcher.Constraint("Equal", 3, 5),
    Sketcher.Constraint("Equal", 5, 7),
    Sketcher.Constraint("Radius", 1, Q("0.2 mm")),
    Sketcher.Constraint("DistanceX", 0, 2, 0, 1, Q("1.8 mm")),
    Sketcher.Constraint("DistanceY", 2, 1, 2, 2, Q("2.4 mm")),
    Sketcher.Constraint("DistanceX", -1, 1, 1, 3, Q("9.414948 mm")),
    Sketcher.Constraint("DistanceY", 1, 3, -1, 1, Q("13.864496 mm")),
])
sketch7.setExpression("Constraints[15]", "Params.sketch7_radius")
sketch7.setExpression("Constraints[16]", "Params.sketch7_width")
sketch7.setExpression("Constraints[17]", "Params.sketch7_height")
pad6 = body.newObject("PartDesign::Pad", "Pad005")
pad6.Profile = sketch7
pad6.setExpression("Length", "Params.pad6_length")
pad6.Reversed = True
doc.recompute()

fillet = body.newObject("PartDesign::Fillet", "Fillet")
fillet.Base = (pad6, edges_at(pad6, [
    (11.356, 1.5, -14.006),
    (10.315, 1.5, -14.064),
    (9.274, 1.5, -14.006),
    (9.215, 1.5, -12.664),
    (9.274, 1.5, -11.323),
    (10.315, 1.5, -11.264),
    (11.356, 1.5, -11.323),
    (11.415, 1.5, -12.664),
]))
fillet.setExpression("Radius", "Params.fillet_radius")
doc.recompute()

chamfer = body.newObject("PartDesign::Chamfer", "Chamfer")
chamfer.Base = (fillet, edges_at(fillet, [
    (10.917, 1.9, -5.161),
    (13.417, 1.9, -2.661),
    (15.917, 1.9, -5.161),
    (13.417, 1.9, -7.661),
]))
chamfer.setExpression("Size", "Params.chamfer_size")

doc.recompute()
